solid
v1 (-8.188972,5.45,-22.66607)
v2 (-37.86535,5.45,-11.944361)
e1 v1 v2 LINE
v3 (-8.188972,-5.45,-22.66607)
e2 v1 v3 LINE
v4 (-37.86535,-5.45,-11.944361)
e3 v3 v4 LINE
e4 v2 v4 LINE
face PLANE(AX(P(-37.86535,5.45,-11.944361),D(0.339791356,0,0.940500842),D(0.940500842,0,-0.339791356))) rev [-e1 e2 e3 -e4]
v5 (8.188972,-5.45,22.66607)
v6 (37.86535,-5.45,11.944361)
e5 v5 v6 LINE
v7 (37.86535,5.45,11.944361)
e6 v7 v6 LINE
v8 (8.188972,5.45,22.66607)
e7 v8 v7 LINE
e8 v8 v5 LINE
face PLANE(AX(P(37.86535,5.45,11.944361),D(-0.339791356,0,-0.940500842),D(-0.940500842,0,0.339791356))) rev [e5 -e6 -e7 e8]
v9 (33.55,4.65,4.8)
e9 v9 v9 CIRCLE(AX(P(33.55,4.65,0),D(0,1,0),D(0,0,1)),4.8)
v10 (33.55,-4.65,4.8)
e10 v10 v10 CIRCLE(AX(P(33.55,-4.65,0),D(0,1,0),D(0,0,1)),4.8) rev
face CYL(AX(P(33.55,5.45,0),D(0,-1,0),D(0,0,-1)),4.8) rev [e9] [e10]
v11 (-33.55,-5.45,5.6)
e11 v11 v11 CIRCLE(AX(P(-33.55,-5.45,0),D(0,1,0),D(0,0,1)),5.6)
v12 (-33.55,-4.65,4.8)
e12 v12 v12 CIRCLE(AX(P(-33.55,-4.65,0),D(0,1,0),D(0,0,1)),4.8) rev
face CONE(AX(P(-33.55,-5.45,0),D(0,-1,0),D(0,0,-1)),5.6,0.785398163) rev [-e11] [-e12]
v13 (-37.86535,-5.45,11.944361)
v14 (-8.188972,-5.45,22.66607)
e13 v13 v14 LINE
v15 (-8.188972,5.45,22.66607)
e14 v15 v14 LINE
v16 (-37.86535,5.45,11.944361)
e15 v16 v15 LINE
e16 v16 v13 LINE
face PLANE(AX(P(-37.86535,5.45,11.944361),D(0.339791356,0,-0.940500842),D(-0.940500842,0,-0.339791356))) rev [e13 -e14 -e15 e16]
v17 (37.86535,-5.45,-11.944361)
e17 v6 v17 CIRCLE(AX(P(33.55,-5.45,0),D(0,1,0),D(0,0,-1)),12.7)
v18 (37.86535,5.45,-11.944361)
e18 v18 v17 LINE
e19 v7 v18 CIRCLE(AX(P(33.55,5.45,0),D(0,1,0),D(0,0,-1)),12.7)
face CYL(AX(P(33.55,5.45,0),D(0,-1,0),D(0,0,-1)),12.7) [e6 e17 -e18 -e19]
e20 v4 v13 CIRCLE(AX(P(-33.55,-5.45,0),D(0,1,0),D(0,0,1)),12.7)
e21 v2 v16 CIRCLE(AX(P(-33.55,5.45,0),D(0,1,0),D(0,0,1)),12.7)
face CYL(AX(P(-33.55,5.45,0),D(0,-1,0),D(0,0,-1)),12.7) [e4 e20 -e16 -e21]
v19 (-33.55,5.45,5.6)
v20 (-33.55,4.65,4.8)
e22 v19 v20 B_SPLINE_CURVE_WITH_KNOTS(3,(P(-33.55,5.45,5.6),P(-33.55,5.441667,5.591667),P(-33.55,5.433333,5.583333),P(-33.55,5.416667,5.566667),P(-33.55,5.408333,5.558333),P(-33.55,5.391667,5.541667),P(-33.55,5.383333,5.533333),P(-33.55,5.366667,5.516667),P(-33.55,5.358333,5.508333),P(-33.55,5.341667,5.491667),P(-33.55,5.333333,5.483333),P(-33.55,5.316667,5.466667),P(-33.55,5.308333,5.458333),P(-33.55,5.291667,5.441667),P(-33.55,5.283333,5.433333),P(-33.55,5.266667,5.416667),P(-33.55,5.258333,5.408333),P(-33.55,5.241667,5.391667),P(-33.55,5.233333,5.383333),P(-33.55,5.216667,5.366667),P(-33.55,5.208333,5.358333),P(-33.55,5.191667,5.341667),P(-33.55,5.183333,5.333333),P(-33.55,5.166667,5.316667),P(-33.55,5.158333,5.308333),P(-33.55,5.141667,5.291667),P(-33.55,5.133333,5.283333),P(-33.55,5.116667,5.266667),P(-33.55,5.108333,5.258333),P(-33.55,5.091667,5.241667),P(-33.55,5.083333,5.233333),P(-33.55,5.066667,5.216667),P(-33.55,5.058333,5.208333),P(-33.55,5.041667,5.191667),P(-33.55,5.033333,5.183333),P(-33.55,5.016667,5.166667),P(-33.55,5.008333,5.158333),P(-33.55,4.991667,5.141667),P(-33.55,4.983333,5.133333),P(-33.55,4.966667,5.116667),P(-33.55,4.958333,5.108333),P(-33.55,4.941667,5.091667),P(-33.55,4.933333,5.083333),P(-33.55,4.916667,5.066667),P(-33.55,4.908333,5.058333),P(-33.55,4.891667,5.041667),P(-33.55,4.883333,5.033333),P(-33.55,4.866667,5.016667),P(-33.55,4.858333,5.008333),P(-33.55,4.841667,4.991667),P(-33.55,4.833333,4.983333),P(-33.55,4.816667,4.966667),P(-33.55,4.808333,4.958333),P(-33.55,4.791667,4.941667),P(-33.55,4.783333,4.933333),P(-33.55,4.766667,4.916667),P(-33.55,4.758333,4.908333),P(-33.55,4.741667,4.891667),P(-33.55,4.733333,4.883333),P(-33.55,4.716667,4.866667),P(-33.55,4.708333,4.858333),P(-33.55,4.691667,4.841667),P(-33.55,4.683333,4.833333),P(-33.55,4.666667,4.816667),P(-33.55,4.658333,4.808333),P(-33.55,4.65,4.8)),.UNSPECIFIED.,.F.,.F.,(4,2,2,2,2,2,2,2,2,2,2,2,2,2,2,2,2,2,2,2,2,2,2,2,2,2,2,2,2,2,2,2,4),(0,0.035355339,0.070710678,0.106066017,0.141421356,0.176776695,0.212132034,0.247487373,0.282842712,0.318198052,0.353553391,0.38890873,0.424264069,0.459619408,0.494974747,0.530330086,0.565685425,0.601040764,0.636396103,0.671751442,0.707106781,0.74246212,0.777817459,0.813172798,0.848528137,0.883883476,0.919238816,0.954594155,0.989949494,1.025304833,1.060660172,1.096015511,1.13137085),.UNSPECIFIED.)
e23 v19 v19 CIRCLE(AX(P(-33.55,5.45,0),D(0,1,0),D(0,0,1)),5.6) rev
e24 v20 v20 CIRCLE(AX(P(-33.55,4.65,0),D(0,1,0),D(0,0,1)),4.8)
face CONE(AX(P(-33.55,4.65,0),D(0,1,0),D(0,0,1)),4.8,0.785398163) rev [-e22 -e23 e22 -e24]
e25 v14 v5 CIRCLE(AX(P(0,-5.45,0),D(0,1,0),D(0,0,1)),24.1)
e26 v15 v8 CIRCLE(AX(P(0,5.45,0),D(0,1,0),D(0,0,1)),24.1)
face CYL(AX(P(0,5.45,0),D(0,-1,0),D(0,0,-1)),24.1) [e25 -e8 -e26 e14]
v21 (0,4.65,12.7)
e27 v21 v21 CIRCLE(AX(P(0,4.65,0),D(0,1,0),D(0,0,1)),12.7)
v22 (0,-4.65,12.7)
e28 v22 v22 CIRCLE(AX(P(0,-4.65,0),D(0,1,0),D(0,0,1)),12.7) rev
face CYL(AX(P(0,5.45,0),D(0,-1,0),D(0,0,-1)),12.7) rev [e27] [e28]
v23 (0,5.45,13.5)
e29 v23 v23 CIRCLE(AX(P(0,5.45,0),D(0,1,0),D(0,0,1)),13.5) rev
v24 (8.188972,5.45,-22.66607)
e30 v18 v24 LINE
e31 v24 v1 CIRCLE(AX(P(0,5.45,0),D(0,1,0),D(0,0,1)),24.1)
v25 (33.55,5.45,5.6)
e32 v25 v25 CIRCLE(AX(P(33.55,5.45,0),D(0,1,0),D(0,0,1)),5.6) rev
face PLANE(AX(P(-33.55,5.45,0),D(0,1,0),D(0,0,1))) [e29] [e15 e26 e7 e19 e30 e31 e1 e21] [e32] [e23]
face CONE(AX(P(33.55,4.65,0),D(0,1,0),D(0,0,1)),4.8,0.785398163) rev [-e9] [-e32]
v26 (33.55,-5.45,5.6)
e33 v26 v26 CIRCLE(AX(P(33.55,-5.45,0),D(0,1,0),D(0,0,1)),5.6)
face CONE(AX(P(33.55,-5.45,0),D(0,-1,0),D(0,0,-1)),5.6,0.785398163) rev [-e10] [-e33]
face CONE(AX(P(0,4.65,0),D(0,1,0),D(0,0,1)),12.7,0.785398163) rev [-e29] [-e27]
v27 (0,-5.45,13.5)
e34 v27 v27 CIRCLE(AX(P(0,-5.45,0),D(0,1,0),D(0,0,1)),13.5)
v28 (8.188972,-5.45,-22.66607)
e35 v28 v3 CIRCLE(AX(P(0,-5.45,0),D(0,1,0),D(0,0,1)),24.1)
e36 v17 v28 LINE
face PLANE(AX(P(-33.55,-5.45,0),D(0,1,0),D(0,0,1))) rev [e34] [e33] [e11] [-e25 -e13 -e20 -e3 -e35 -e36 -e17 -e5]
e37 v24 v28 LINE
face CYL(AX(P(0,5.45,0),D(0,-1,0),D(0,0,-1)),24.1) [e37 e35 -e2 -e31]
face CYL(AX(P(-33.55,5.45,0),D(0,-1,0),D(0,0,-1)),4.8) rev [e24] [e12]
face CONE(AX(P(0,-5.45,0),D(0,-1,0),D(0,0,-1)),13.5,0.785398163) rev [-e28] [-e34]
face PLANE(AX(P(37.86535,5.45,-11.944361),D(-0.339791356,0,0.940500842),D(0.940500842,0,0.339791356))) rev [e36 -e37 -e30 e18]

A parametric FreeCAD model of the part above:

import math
import FreeCAD as App
import Part
import Sketcher
from FreeCAD import Vector


def edges_at(feature, points):
    """Names of the edges that pass closest to the given points."""
    edges = feature.Shape.Edges
    near = lambda p: min(range(len(edges)), key=lambda i: edges[i].distToShape(Part.Vertex(*p))[0])
    return sorted({f"Edge{near(p) + 1}" for p in points})

doc = App.newDocument("Part")
body = doc.addObject("PartDesign::Body", "Body")

# Sketch on XZ plane
sketch1 = body.newObject("Sketcher::SketchObject", "Sketch")
sketch1.AttachmentSupport = (doc.getObject("XZ_Plane"), [""])
sketch1.MapMode = "FlatFace"
sketch1.addGeometry(Part.LineSegment(Vector(-8.2, -22.7, 0), Vector(-37.9, -11.9, 0)), False)
sketch1.addGeometry(Part.ArcOfCircle(Part.Circle(Vector(-33.5, 0, 0), Vector(0, 0, 1), 12.7), math.radians(110), math.radians(250)), False)
sketch1.addGeometry(Part.LineSegment(Vector(-37.9, 11.9, 0), Vector(-8.2, 22.7, 0)), False)
sketch1.addGeometry(Part.ArcOfCircle(Part.Circle(Vector(0, 0, 0), Vector(0, 0, 1), 24.1), math.radians(70), math.radians(110)), False)
sketch1.addGeometry(Part.LineSegment(Vector(8.2, 22.7, 0), Vector(37.9, 11.9, 0)), False)
sketch1.addGeometry(Part.ArcOfCircle(Part.Circle(Vector(33.5, 0, 0), Vector(0, 0, 1), 12.7), math.radians(-70), math.radians(70)), False)
sketch1.addGeometry(Part.LineSegment(Vector(37.9, -11.9, 0), Vector(8.2, -22.7, 0)), False)
sketch1.addGeometry(Part.ArcOfCircle(Part.Circle(Vector(0, 0, 0), Vector(0, 0, 1), 24.1), math.radians(-110), math.radians(-70)), False)
sketch1.addGeometry(Part.Circle(Vector(33.5, 0, 0), Vector(0, 0, 1), 4.8), False)
sketch1.addGeometry(Part.Circle(Vector(0, 0, 0), Vector(0, 0, 1), 12.7), False)
sketch1.addGeometry(Part.Circle(Vector(-33.5, 0, 0), Vector(0, 0, 1), 4.8), False)
sketch1.addConstraint(Sketcher.Constraint("Tangent", 0, 2, 1, 2))
sketch1.addConstraint(Sketcher.Constraint("Tangent", 1, 1, 2, 1))
sketch1.addConstraint(Sketcher.Constraint("Tangent", 2, 2, 3, 2))
sketch1.addConstraint(Sketcher.Constraint("Tangent", 3, 1, 4, 1))
sketch1.addConstraint(Sketcher.Constraint("Tangent", 4, 2, 5, 2))
sketch1.addConstraint(Sketcher.Constraint("Tangent", 5, 1, 6, 1))
sketch1.addConstraint(Sketcher.Constraint("Tangent", 6, 2, 7, 2))
sketch1.addConstraint(Sketcher.Constraint("Tangent", 7, 1, 0, 1))
sketch1.addConstraint(Sketcher.Constraint("Coincident", 3, 3, -1, 1))
sketch1.addConstraint(Sketcher.Constraint("Coincident", 7, 3, -1, 1))
sketch1.addConstraint(Sketcher.Constraint("Coincident", 9, 3, -1, 1))
sketch1.addConstraint(Sketcher.Constraint("Coincident", 8, 3, 5, 3))
sketch1.addConstraint(Sketcher.Constraint("Coincident", 10, 3, 1, 3))
sketch1.addConstraint(Sketcher.Constraint("Equal", 1, 5))
sketch1.addConstraint(Sketcher.Constraint("Equal", 3, 7))
sketch1.addConstraint(Sketcher.Constraint("Equal", 5, 9))
sketch1.addConstraint(Sketcher.Constraint("Equal", 8, 10))
sketch1.addConstraint(Sketcher.Constraint("Symmetric", 1, 3, 5, 3, -1, 1))
sketch1.addConstraint(Sketcher.Constraint("PointOnObject", 1, 3, -1))
sketch1.addConstraint(Sketcher.Constraint("Diameter", 8, 9.6))
sketch1.addConstraint(Sketcher.Constraint("Diameter", 9, 25.4))
sketch1.addConstraint(Sketcher.Constraint("Radius", 3, 24.1))
sketch1.addConstraint(Sketcher.Constraint("DistanceX", 1, 3, 5, 3, 67.1))
pad1 = body.newObject("PartDesign::Pad", "Pad")
pad1.Profile = sketch1
pad1.Length = 10.9
pad1.Midplane = True
doc.recompute()

chamfer = body.newObject("PartDesign::Chamfer", "Chamfer")
chamfer.Base = (pad1, edges_at(pad1, [
    (-33.55, -5.45, -4.8),
    (-33.55, 5.45, -4.8),
    (33.55, -5.45, -4.8),
    (33.55, 5.45, -4.8),
    (0, -5.45, -12.7),
    (0, 5.45, -12.7),
]))
chamfer.Size = 0.8

doc.recompute()
